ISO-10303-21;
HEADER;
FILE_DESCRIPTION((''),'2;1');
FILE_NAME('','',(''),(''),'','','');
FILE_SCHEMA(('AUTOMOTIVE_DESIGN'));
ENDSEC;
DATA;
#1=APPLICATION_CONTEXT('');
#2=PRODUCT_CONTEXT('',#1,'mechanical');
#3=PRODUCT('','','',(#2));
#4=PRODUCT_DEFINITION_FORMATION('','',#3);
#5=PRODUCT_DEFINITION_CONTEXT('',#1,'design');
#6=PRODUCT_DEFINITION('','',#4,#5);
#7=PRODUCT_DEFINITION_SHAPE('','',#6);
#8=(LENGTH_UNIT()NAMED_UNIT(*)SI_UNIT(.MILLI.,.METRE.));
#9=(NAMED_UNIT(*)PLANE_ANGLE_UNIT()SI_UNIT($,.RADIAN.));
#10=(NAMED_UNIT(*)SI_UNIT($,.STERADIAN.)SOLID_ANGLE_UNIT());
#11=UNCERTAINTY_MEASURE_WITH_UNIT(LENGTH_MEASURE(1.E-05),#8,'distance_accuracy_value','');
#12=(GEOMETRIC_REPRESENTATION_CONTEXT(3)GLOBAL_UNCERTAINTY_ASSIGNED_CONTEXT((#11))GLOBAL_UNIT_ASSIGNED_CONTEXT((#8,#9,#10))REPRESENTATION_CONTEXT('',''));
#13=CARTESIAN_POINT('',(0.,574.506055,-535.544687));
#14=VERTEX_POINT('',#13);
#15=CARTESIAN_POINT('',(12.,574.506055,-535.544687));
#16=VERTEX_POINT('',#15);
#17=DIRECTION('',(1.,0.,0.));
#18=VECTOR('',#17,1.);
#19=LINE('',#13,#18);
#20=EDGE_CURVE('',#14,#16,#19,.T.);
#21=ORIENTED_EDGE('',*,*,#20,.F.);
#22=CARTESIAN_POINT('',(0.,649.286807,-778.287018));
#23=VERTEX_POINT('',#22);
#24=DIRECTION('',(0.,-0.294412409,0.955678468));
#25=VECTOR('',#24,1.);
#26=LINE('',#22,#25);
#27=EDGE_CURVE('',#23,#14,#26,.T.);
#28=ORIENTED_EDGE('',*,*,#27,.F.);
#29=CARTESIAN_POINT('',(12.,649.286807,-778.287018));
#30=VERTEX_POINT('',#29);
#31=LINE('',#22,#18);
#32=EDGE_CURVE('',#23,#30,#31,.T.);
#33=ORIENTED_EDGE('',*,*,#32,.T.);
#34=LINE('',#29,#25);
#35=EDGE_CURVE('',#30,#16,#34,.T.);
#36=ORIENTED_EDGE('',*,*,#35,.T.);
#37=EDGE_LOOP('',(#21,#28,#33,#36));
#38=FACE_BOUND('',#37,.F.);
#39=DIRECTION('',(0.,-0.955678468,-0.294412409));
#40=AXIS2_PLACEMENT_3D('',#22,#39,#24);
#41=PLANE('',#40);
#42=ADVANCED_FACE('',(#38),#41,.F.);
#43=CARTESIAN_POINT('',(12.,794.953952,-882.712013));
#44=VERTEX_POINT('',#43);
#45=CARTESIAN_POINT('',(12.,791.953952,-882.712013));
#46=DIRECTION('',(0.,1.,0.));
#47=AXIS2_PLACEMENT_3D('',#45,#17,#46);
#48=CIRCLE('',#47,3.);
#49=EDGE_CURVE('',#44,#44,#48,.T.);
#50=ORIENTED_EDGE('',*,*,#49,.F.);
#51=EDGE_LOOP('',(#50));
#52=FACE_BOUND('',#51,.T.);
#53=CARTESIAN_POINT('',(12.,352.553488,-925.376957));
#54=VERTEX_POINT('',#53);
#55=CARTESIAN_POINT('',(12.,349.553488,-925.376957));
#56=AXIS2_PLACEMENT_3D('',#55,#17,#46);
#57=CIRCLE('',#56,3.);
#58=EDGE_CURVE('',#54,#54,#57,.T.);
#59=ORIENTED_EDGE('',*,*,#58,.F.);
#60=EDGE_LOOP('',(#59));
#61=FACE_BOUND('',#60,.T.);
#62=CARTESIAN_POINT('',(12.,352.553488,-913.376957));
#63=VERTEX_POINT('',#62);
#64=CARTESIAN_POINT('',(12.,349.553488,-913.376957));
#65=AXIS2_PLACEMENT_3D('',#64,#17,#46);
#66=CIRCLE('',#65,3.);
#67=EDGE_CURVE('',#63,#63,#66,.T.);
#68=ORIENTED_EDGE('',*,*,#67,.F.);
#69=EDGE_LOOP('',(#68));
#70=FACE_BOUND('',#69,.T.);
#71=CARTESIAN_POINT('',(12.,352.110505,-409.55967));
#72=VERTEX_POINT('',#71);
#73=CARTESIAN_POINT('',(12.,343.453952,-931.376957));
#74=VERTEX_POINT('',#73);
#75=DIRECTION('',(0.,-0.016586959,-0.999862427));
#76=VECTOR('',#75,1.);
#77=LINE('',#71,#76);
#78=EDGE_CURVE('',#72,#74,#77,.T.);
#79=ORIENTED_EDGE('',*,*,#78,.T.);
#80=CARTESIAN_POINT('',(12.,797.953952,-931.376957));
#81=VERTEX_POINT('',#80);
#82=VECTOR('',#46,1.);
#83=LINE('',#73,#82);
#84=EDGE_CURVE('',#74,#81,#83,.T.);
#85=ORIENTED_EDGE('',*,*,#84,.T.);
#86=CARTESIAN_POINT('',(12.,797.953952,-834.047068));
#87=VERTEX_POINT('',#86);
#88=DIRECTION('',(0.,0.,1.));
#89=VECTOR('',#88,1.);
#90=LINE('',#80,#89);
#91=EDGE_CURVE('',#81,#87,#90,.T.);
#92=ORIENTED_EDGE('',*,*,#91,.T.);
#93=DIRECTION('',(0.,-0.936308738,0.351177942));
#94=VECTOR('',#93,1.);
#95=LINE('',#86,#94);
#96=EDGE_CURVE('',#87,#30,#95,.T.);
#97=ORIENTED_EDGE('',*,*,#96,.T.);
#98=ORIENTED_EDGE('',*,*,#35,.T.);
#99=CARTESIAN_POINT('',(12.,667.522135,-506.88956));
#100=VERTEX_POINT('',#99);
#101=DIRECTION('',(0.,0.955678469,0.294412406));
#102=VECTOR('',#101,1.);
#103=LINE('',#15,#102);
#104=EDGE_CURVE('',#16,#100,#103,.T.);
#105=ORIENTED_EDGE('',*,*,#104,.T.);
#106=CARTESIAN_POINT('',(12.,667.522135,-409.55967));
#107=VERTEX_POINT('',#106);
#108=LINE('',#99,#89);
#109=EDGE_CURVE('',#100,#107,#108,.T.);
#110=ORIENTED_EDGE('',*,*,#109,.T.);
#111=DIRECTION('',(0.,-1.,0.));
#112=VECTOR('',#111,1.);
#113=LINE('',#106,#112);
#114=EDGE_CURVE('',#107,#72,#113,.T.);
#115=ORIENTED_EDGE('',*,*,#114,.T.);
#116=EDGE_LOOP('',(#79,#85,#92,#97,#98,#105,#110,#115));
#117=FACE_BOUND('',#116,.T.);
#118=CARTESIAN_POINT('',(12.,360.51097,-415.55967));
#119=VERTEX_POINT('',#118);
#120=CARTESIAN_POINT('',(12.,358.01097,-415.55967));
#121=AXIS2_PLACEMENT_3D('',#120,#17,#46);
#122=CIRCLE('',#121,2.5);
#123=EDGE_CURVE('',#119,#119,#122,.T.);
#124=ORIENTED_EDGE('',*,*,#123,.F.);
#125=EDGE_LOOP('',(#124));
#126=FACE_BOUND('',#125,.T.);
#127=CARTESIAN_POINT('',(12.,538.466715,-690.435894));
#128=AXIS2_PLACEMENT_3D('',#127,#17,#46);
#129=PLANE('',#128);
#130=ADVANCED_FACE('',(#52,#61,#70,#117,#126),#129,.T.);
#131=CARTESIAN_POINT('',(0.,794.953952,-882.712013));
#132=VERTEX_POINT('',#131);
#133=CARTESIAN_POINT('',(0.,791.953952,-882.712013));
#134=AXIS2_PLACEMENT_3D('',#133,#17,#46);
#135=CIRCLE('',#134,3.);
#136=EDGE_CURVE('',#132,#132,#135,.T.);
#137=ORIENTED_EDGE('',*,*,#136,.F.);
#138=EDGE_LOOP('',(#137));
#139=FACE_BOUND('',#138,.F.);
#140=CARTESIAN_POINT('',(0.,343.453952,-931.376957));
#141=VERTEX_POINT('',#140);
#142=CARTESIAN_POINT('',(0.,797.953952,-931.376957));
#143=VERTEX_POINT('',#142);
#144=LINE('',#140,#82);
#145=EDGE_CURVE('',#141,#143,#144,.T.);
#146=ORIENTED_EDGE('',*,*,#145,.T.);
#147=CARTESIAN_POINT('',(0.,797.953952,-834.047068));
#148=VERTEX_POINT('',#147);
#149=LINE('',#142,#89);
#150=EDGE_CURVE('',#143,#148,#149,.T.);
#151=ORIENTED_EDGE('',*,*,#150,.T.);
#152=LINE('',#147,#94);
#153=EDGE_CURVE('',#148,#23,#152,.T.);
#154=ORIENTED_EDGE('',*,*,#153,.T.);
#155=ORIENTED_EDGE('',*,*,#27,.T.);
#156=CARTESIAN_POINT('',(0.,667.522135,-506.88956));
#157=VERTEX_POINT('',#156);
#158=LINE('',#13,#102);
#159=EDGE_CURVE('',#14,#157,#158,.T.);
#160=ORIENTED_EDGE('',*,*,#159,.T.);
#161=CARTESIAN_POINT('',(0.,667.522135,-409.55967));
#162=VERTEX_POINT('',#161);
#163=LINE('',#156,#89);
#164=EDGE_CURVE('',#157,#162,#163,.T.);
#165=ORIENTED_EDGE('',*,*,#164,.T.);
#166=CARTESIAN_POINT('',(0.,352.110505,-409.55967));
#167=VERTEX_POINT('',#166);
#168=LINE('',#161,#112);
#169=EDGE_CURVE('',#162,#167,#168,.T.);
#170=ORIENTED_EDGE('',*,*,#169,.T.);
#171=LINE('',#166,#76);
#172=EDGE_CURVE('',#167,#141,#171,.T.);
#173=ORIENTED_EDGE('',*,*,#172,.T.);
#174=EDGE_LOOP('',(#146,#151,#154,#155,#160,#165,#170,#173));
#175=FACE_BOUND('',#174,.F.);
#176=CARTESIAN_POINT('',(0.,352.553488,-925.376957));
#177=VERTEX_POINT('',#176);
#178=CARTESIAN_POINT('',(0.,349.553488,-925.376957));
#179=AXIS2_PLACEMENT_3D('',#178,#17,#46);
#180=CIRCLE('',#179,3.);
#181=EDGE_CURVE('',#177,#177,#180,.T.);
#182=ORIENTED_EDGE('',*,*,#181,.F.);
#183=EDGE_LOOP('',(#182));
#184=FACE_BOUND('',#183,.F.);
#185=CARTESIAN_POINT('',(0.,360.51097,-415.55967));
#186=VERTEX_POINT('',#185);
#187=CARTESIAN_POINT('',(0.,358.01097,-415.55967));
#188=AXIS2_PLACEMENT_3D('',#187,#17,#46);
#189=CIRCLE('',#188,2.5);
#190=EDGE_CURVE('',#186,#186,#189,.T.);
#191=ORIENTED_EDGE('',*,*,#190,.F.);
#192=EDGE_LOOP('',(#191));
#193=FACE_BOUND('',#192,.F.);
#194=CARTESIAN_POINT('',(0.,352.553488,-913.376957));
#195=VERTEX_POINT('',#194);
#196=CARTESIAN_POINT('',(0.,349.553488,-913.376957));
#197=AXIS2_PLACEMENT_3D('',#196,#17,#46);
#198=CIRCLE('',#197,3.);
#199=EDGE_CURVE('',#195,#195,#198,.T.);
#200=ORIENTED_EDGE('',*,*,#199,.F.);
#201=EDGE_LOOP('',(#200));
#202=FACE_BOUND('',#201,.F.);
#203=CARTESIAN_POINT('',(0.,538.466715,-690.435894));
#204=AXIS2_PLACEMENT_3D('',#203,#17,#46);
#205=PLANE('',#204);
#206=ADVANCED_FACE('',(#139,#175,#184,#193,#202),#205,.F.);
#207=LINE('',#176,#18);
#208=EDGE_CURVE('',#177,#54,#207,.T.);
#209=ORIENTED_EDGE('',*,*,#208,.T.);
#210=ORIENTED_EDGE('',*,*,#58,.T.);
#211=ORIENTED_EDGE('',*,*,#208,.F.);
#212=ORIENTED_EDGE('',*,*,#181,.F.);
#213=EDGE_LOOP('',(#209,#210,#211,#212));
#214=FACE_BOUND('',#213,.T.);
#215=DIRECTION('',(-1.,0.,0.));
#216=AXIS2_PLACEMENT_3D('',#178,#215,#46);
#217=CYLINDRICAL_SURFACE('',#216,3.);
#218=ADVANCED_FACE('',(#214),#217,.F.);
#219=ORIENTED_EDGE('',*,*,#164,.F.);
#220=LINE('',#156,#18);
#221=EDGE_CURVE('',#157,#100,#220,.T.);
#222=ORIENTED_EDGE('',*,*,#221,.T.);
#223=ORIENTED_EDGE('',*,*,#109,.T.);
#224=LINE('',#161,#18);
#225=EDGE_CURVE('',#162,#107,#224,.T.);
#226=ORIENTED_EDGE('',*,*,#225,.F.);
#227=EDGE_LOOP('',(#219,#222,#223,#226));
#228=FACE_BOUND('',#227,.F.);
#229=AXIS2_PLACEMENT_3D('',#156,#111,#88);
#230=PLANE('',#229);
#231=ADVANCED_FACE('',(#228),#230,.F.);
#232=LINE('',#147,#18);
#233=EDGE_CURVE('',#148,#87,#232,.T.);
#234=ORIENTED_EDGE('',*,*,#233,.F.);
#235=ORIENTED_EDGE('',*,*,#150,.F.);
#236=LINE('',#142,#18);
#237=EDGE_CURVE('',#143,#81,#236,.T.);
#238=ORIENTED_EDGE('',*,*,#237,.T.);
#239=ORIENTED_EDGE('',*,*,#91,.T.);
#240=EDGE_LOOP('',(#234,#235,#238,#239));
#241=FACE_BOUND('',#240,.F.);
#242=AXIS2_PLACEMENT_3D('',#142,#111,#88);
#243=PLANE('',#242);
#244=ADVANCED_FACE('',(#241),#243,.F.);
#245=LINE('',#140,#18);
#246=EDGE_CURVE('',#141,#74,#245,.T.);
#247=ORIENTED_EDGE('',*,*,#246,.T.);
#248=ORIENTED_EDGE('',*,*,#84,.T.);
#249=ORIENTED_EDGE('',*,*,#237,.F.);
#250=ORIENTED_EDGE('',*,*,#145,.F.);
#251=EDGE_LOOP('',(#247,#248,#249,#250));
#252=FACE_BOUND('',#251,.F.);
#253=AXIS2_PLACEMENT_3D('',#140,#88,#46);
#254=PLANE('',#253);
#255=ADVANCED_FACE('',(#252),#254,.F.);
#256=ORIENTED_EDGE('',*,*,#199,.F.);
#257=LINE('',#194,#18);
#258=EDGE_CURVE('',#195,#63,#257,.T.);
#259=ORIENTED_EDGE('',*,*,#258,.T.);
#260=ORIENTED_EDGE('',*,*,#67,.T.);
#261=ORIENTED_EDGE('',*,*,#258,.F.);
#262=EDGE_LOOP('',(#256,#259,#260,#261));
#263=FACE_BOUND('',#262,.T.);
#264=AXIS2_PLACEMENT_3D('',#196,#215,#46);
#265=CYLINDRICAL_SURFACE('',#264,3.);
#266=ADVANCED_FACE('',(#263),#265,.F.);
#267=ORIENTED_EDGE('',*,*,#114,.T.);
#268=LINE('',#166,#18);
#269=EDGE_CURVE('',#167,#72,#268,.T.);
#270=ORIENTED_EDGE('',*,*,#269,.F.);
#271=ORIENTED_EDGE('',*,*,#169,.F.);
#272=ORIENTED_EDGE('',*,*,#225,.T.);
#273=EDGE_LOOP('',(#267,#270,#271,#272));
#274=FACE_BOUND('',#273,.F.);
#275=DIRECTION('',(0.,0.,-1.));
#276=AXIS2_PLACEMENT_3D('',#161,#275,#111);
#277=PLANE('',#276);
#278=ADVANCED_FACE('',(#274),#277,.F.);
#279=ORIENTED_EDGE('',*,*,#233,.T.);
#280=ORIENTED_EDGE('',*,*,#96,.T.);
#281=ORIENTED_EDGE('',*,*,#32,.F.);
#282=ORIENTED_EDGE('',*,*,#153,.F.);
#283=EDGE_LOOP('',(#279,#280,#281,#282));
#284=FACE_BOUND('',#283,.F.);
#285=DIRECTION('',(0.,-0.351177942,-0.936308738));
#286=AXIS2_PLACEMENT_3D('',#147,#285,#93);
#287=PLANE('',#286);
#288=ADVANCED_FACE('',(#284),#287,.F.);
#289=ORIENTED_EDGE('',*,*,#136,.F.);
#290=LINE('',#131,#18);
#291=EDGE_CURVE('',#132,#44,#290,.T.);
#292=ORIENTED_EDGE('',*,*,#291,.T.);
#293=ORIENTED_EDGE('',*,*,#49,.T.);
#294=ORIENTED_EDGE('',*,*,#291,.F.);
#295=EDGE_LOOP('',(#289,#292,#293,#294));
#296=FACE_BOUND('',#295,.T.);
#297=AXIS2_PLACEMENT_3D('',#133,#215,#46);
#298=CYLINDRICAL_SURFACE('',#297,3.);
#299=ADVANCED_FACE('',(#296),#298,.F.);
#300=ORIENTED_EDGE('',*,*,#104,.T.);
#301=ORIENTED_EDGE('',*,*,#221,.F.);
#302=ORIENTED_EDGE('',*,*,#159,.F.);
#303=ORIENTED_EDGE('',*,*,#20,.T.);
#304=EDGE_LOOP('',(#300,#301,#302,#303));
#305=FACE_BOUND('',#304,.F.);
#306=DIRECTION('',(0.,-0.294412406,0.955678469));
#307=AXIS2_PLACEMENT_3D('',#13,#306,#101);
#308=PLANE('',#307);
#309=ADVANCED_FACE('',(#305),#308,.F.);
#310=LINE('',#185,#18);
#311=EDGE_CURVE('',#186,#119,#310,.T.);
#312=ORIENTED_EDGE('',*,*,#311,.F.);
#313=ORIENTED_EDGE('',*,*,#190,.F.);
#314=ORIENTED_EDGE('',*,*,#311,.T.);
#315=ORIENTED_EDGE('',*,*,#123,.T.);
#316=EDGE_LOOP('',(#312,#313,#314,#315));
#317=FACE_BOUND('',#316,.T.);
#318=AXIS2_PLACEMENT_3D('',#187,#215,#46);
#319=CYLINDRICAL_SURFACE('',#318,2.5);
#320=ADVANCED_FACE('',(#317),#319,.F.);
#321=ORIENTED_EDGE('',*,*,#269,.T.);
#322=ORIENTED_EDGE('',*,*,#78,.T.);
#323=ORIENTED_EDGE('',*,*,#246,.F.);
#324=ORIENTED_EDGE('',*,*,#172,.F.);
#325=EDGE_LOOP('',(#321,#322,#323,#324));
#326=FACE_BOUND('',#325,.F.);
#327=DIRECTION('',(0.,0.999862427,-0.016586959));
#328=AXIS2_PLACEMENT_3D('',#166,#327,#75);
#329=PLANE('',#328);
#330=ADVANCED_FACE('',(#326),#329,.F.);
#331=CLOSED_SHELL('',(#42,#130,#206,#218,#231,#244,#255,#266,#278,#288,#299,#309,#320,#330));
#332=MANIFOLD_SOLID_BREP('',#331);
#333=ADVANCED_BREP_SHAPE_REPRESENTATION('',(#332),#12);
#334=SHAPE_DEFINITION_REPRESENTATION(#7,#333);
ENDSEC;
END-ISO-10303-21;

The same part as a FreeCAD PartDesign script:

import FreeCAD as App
import Part
import Sketcher

doc = App.newDocument("Part")
body = doc.addObject("PartDesign::Body", "Body")

sketch1 = body.newObject("Sketcher::SketchObject", "Sketch")
sketch1.AttachmentSupport = (doc.getObject("YZ_Plane"), [""])
sketch1.MapMode = "FlatFace"
sketch1.addGeometry(Part.LineSegment(App.Vector(352.110505, -409.55967, 0), App.Vector(343.453952, -931.376957, 0)), False)
sketch1.addGeometry(Part.LineSegment(App.Vector(343.453952, -931.376957, 0), App.Vector(797.953952, -931.376957, 0)), False)
sketch1.addGeometry(Part.LineSegment(App.Vector(797.953952, -931.376957, 0), App.Vector(797.953952, -834.047068, 0)), False)
sketch1.addGeometry(Part.LineSegment(App.Vector(797.953952, -834.047068, 0), App.Vector(649.286807, -778.287018, 0)), False)
sketch1.addGeometry(Part.LineSegment(App.Vector(649.286807, -778.287018, 0), App.Vector(574.506055, -535.544687, 0)), False)
sketch1.addGeometry(Part.LineSegment(App.Vector(574.506055, -535.544687, 0), App.Vector(667.522135, -506.88956, 0)), False)
sketch1.addGeometry(Part.LineSegment(App.Vector(667.522135, -506.88956, 0), App.Vector(667.522135, -409.55967, 0)), False)
sketch1.addGeometry(Part.LineSegment(App.Vector(667.522135, -409.55967, 0), App.Vector(352.110505, -409.55967, 0)), False)
sketch1.addGeometry(Part.Circle(App.Vector(349.553488, -925.376957, 0), App.Vector(0, 0, 1), 3), False)
sketch1.addGeometry(Part.Circle(App.Vector(349.553488, -913.376957, 0), App.Vector(0, 0, 1), 3), False)
sketch1.addGeometry(Part.Circle(App.Vector(791.953952, -882.712013, 0), App.Vector(0, 0, 1), 3), False)
sketch1.addGeometry(Part.Circle(App.Vector(358.01097, -415.55967, 0), App.Vector(0, 0, 1), 2.5), False)
sketch1.addConstraint(Sketcher.Constraint("Coincident", 0, 2, 1, 1))
sketch1.addConstraint(Sketcher.Constraint("Coincident", 1, 2, 2, 1))
sketch1.addConstraint(Sketcher.Constraint("Coincident", 2, 2, 3, 1))
sketch1.addConstraint(Sketcher.Constraint("Coincident", 3, 2, 4, 1))
sketch1.addConstraint(Sketcher.Constraint("Coincident", 4, 2, 5, 1))
sketch1.addConstraint(Sketcher.Constraint("Coincident", 5, 2, 6, 1))
sketch1.addConstraint(Sketcher.Constraint("Coincident", 6, 2, 7, 1))
sketch1.addConstraint(Sketcher.Constraint("Coincident", 7, 2, 0, 1))
sketch1.addConstraint(Sketcher.Constraint("Horizontal", 1))
sketch1.addConstraint(Sketcher.Constraint("Vertical", 2))
sketch1.addConstraint(Sketcher.Constraint("Vertical", 6))
sketch1.addConstraint(Sketcher.Constraint("Horizontal", 7))
sketch1.addConstraint(Sketcher.Constraint("Equal", 8, 9))
sketch1.addConstraint(Sketcher.Constraint("Equal", 9, 10))
sketch1.addConstraint(Sketcher.Constraint("Perpendicular", 4, 5))
sketch1.addConstraint(Sketcher.Constraint("Vertical", 8, 3, 9, 3))
sketch1.addConstraint(Sketcher.Constraint("Equal", 2, 6))
sketch1.addConstraint(Sketcher.Constraint("Diameter", 8, 6.0))
sketch1.addConstraint(Sketcher.Constraint("Diameter", 11, 5.0))
sketch1.addConstraint(Sketcher.Constraint("Distance", 4, 254.0))
sketch1.addConstraint(Sketcher.Constraint("DistanceX", 1, 1, 1, 2, 454.5))
sketch1.addConstraint(Sketcher.Constraint("DistanceY", 8, 3, 9, 3, 12.0))
sketch1.addConstraint(Sketcher.Constraint("DistanceY", 0, 2, 8, 3, 6.0))
sketch1.addConstraint(Sketcher.Constraint("DistanceX", 10, 3, 1, 2, 6.0))
sketch1.addConstraint(Sketcher.Constraint("DistanceY", 11, 3, 6, 2, 6.0))
sketch1.addConstraint(Sketcher.Constraint("DistanceX", 7, 2, 7, 1, 315.41163))
sketch1.addConstraint(Sketcher.Constraint("DistanceY", 2, 1, 2, 2, 97.329889))
sketch1.addConstraint(Sketcher.Constraint("DistanceY", 2, 2, 6, 2, 424.487398))
sketch1.addConstraint(Sketcher.Constraint("DistanceX", 7, 2, 3, 2, 297.176302))
sketch1.addConstraint(Sketcher.Constraint("Distance", 5, 97.32989))
sketch1.addConstraint(Sketcher.Constraint("DistanceX", -1, 1, 8, 3, 349.553488))
sketch1.addConstraint(Sketcher.Constraint("DistanceX", -1, 1, 10, 3, 791.953952))
sketch1.addConstraint(Sketcher.Constraint("DistanceX", -1, 1, 11, 3, 358.01097))
sketch1.addConstraint(Sketcher.Constraint("DistanceY", 11, 3, -1, 1, 415.55967))
sketch1.addConstraint(Sketcher.Constraint("DistanceX", 9, 3, 3, 2, 299.733319))
sketch1.addConstraint(Sketcher.Constraint("DistanceY", 10, 3, -1, 1, 882.712013))
pad1 = body.newObject("PartDesign::Pad", "Pad")
pad1.Profile = sketch1
pad1.Length = 12

doc.recompute()
